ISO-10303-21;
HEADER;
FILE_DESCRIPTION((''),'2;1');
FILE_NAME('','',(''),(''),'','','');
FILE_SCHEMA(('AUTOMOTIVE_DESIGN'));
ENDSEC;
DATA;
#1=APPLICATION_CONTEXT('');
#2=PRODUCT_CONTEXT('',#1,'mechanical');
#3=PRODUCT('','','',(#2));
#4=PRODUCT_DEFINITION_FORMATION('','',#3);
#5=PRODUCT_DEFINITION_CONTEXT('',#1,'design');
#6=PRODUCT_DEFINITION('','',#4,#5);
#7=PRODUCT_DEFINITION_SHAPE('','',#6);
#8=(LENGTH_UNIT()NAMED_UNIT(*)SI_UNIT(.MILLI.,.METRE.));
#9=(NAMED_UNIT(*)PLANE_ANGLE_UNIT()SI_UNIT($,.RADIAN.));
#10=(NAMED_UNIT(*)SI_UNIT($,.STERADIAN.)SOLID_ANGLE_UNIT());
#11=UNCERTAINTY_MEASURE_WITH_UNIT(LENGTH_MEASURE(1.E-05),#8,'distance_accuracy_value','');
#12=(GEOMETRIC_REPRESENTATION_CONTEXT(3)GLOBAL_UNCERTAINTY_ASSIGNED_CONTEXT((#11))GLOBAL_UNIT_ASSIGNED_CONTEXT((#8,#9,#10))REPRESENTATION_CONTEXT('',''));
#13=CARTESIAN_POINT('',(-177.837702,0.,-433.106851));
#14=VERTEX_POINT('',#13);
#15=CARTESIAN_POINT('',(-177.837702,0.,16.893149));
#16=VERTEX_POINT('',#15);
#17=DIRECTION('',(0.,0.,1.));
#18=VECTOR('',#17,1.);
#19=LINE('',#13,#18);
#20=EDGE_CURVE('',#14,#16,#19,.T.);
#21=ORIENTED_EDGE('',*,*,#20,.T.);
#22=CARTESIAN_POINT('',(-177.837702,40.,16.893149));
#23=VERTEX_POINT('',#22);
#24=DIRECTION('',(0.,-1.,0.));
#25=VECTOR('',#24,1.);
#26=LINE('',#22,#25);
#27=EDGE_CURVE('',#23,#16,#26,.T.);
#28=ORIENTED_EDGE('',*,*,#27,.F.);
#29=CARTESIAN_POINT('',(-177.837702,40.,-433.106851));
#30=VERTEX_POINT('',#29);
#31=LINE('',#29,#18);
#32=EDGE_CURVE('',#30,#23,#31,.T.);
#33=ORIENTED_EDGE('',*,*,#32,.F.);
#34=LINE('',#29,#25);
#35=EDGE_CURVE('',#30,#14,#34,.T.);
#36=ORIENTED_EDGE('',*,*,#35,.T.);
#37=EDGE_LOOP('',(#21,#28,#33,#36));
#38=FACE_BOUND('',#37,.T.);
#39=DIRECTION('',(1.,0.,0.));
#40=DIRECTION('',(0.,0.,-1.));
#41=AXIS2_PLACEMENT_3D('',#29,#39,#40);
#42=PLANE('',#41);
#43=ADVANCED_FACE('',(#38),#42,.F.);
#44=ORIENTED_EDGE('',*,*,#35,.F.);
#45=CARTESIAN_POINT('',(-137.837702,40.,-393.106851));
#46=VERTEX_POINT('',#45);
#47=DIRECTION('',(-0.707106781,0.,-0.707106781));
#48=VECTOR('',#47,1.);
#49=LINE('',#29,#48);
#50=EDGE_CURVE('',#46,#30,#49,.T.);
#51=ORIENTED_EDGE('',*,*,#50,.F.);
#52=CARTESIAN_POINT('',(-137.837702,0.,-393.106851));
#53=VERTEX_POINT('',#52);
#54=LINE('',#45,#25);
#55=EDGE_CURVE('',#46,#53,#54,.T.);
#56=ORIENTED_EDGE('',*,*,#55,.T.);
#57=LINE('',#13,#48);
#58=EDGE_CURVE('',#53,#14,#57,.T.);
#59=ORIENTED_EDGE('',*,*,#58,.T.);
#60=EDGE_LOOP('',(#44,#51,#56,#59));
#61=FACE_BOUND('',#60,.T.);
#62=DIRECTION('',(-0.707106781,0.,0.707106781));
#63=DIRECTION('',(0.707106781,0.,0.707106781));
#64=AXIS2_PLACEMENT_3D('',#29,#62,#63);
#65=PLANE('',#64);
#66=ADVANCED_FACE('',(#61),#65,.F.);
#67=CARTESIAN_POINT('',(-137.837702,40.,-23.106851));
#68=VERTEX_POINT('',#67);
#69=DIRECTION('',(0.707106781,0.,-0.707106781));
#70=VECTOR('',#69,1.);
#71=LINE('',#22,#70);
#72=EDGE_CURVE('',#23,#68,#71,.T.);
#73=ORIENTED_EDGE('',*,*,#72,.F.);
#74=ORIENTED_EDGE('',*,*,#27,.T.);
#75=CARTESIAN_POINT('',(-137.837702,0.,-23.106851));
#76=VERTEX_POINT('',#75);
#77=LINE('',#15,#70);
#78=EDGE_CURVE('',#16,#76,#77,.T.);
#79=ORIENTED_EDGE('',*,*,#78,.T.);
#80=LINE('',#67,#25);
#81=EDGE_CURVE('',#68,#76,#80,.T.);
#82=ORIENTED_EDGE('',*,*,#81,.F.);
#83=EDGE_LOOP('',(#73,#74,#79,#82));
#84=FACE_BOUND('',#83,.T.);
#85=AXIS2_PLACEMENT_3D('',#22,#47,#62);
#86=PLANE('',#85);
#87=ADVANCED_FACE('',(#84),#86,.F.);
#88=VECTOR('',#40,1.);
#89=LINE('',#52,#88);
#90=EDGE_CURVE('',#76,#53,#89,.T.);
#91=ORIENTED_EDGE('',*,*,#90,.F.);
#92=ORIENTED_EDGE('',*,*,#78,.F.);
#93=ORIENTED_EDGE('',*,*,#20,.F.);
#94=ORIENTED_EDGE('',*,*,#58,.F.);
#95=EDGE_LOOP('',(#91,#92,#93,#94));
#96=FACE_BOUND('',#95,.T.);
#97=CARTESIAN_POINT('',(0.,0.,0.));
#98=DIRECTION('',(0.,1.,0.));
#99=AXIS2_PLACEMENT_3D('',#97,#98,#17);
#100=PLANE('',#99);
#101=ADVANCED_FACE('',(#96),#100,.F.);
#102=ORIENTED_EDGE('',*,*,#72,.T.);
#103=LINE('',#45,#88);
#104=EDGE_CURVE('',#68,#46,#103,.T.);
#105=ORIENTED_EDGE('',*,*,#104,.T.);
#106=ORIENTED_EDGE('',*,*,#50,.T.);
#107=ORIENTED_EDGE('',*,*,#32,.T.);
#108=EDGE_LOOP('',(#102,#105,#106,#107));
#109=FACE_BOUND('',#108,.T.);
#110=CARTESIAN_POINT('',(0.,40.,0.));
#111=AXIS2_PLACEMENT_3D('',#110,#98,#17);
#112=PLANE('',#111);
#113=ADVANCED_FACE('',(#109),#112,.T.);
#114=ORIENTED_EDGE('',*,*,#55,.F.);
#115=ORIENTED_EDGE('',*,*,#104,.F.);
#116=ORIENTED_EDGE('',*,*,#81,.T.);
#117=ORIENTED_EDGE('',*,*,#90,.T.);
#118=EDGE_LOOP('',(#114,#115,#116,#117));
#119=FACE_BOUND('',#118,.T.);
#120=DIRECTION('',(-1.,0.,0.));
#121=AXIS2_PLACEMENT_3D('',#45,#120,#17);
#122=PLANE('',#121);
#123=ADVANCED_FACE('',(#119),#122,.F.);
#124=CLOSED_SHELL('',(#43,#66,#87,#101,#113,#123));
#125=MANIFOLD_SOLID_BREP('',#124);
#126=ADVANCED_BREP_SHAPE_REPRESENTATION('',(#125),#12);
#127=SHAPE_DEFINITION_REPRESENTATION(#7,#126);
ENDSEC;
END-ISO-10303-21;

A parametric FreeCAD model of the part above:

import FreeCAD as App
import Part
import Sketcher

V = App.Vector
Q = App.Units.Quantity

doc = App.newDocument("Part")
body = doc.addObject("PartDesign::Body", "Body")

# Sketch on XZ plane
sketch1 = doc.addObject("Sketcher::SketchObject", "Sketch")
body.addObject(sketch1)
sketch1.AttachmentSupport = (doc.XZ_Plane, [""])
sketch1.MapMode = "FlatFace"
sketch1.addGeometry([
    Part.LineSegment(V(-178, 17, 0), V(-138, -23, 0)),
    Part.LineSegment(V(-138, -23, 0), V(-138, -393, 0)),
    Part.LineSegment(V(-138, -393, 0), V(-178, -433, 0)),
    Part.LineSegment(V(-178, -433, 0), V(-178, 17, 0)),
], False)
sketch1.addConstraint([
    Sketcher.Constraint("Coincident", 0, 2, 1, 1),
    Sketcher.Constraint("Coincident", 1, 2, 2, 1),
    Sketcher.Constraint("Coincident", 2, 2, 3, 1),
    Sketcher.Constraint("Coincident", 3, 2, 0, 1),
    Sketcher.Constraint("Vertical", 1),
    Sketcher.Constraint("Vertical", 3),
    Sketcher.Constraint("Perpendicular", 0, 2),
    Sketcher.Constraint("Equal", 0, 2),
    Sketcher.Constraint("DistanceY", 1, 2, 1, 1, Q("370 mm")),
    Sketcher.Constraint("DistanceY", 3, 1, 3, 2, Q("450 mm")),
    Sketcher.Constraint("DistanceX", 0, 2, -1, 1, Q("137.837702 mm")),
    Sketcher.Constraint("DistanceY", 0, 2, -1, 1, Q("23.106851 mm")),
])
pad1 = doc.addObject("PartDesign::Pad", "Pad")
body.addObject(pad1)
pad1.Profile = sketch1
pad1.Length = 40
pad1.Reversed = True

doc.recompute()
